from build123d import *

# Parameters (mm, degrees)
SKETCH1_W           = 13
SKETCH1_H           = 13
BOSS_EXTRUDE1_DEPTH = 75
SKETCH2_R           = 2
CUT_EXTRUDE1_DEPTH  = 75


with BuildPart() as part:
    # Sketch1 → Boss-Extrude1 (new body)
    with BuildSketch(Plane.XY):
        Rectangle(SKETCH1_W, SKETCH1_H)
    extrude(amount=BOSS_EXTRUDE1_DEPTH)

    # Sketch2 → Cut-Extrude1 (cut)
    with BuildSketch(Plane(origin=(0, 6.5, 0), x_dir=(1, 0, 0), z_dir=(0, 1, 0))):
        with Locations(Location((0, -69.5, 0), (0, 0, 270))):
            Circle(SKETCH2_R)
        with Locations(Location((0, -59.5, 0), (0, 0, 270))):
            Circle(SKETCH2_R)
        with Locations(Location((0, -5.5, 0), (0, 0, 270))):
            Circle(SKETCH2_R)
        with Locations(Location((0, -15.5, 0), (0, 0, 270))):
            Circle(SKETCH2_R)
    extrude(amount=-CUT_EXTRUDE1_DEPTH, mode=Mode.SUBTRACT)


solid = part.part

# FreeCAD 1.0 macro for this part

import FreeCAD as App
import Part
import Sketcher

V = App.Vector

doc = App.newDocument("Part")
params = doc.addObject("Spreadsheet::Sheet", "Params")
for row, (alias, value) in enumerate([
    ("sketch1_width", "13 mm"),
    ("pad1_length", "75 mm"),
    ("sketch2_diameter", "4 mm"),
    ("pocket1_length", "75 mm"),
], start=1):
    params.set(f"A{row}", alias)
    params.set(f"B{row}", "=" + value)
    params.setAlias(f"B{row}", alias)

body = doc.addObject("PartDesign::Body", "Body")

# Sketch on XY plane
sketch1 = body.newObject("Sketcher::SketchObject", "Sketch")
sketch1.AttachmentSupport = (doc.getObject("XY_Plane"), [""])
sketch1.MapMode = "FlatFace"
sketch1.addGeometry(Part.LineSegment(V(-6, 6, 0), V(-6, -6, 0)), False)
sketch1.addGeometry(Part.LineSegment(V(-6, -6, 0), V(6, -6, 0)), False)
sketch1.addGeometry(Part.LineSegment(V(6, -6, 0), V(6, 6, 0)), False)
sketch1.addGeometry(Part.LineSegment(V(6, 6, 0), V(-6, 6, 0)), False)
sketch1.addConstraint(Sketcher.Constraint("Coincident", 0, 2, 1, 1))
sketch1.addConstraint(Sketcher.Constraint("Coincident", 1, 2, 2, 1))
sketch1.addConstraint(Sketcher.Constraint("Coincident", 2, 2, 3, 1))
sketch1.addConstraint(Sketcher.Constraint("Coincident", 3, 2, 0, 1))
sketch1.addConstraint(Sketcher.Constraint("Vertical", 0))
sketch1.addConstraint(Sketcher.Constraint("Horizontal", 1))
sketch1.addConstraint(Sketcher.Constraint("Vertical", 2))
sketch1.addConstraint(Sketcher.Constraint("Horizontal", 3))
sketch1.addConstraint(Sketcher.Constraint("Symmetric", 0, 2, 2, 2, -1, 1))
sketch1.addConstraint(Sketcher.Constraint("Equal", 3, 0))
sketch1.addConstraint(Sketcher.Constraint("DistanceX", 1, 1, 1, 2, 13.0))
sketch1.setExpression("Constraints[10]", "Params.sketch1_width")
pad1 = body.newObject("PartDesign::Pad", "Pad")
pad1.Profile = sketch1
pad1.setExpression("Length", "Params.pad1_length")

# Sketch on XZ plane
sketch2 = body.newObject("Sketcher::SketchObject", "Sketch001")
sketch2.AttachmentSupport = (doc.getObject("XZ_Plane"), [""])
sketch2.MapMode = "FlatFace"
sketch2.AttachmentOffset = App.Placement(V(0, 0, -6.5), App.Rotation())
sketch2.addGeometry(Part.Circle(V(0, 69.5, 0), V(0, 0, 1), 2), False)
sketch2.addGeometry(Part.Circle(V(0, 59.5, 0), V(0, 0, 1), 2), False)
sketch2.addGeometry(Part.Circle(V(0, 5.5, 0), V(0, 0, 1), 2), False)
sketch2.addGeometry(Part.Circle(V(0, 15.5, 0), V(0, 0, 1), 2), False)
sketch2.addConstraint(Sketcher.Constraint("Equal", 0, 1))
sketch2.addConstraint(Sketcher.Constraint("Equal", 1, 2))
sketch2.addConstraint(Sketcher.Constraint("Equal", 2, 3))
sketch2.addConstraint(Sketcher.Constraint("PointOnObject", 0, 3, -2))
sketch2.addConstraint(Sketcher.Constraint("PointOnObject", 1, 3, -2))
sketch2.addConstraint(Sketcher.Constraint("PointOnObject", 2, 3, -2))
sketch2.addConstraint(Sketcher.Constraint("PointOnObject", 3, 3, -2))
sketch2.addConstraint(Sketcher.Constraint("Diameter", 0, 4.0))
sketch2.addConstraint(Sketcher.Constraint("DistanceY", 1, 3, 0, 3, 10.0))
sketch2.addConstraint(Sketcher.Constraint("DistanceY", 2, 3, 1, 3, 54.0))
sketch2.addConstraint(Sketcher.Constraint("DistanceY", 2, 3, 3, 3, 10.0))
sketch2.addConstraint(Sketcher.Constraint("DistanceY", -1, 1, 0, 3, 69.5))
sketch2.setExpression("Constraints[7]", "Params.sketch2_diameter")
pocket1 = body.newObject("PartDesign::Pocket", "Pocket")
pocket1.Profile = sketch2
pocket1.setExpression("Length", "Params.pocket1_length")
pocket1.Reversed = True

doc.recompute()
